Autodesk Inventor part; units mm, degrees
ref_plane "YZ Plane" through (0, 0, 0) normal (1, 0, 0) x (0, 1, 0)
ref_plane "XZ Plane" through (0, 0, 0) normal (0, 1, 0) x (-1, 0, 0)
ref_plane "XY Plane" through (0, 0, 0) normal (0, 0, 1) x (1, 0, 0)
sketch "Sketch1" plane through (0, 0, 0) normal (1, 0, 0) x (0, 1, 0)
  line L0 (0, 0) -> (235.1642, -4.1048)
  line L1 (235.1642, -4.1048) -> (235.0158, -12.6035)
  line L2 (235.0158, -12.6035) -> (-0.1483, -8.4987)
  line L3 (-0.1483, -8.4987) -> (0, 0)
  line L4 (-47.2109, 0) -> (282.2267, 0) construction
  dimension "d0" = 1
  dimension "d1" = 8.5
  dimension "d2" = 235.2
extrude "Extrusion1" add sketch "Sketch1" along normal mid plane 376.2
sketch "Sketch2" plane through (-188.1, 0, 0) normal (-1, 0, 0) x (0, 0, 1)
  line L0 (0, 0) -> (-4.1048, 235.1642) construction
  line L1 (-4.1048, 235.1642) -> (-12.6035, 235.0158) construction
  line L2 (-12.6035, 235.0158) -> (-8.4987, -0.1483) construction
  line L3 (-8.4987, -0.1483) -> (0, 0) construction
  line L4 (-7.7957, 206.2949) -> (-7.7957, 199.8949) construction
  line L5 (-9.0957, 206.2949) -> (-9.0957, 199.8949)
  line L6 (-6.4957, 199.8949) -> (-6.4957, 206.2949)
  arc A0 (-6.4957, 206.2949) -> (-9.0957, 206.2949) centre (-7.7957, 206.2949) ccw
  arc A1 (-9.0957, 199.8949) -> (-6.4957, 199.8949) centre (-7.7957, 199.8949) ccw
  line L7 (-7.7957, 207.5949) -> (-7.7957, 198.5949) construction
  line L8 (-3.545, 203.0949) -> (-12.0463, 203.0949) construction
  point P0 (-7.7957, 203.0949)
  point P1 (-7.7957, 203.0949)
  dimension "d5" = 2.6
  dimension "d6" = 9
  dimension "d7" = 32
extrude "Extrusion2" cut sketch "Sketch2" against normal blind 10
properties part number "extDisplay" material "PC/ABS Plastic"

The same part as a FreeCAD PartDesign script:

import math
import FreeCAD as App
import Part
import Sketcher
Q = App.Units.Quantity

doc = App.newDocument("Part")
body = doc.addObject("PartDesign::Body", "Body")

# Sketch on YZ plane
sketch1 = body.newObject("Sketcher::SketchObject", "Sketch")
sketch1.AttachmentSupport = (doc.getObject("YZ_Plane"), [""])
sketch1.MapMode = "FlatFace"
sketch1.addGeometry([
    Part.LineSegment(App.Vector(235, -4, 0), App.Vector(0, 0, 0)),
    Part.LineSegment(App.Vector(0, 0, 0), App.Vector(0, -8, 0)),
    Part.LineSegment(App.Vector(0, -8, 0), App.Vector(235, -13, 0)),
    Part.LineSegment(App.Vector(235, -13, 0), App.Vector(235, -4, 0)),
], False)
sketch1.addConstraint([
    Sketcher.Constraint("Coincident", 0, 2, 1, 1),
    Sketcher.Constraint("Coincident", 1, 2, 2, 1),
    Sketcher.Constraint("Coincident", 2, 2, 3, 1),
    Sketcher.Constraint("Coincident", 3, 2, 0, 1),
    Sketcher.Constraint("Coincident", 0, 2, -1, 1),
    Sketcher.Constraint("Perpendicular", 0, 1),
    Sketcher.Constraint("Perpendicular", 1, 2),
    Sketcher.Constraint("Perpendicular", 2, 3),
    Sketcher.Constraint("Angle", 2, Q("-1 deg")),
    Sketcher.Constraint("Distance", 0, Q("235.2 mm")),
    Sketcher.Constraint("Distance", 1, Q("8.5 mm")),
])
pad1 = body.newObject("PartDesign::Pad", "Pad")
pad1.Profile = sketch1
pad1.Length = 376.2
pad1.Midplane = True

# Sketch on YZ plane
sketch2 = body.newObject("Sketcher::SketchObject", "Sketch001")
sketch2.AttachmentSupport = (doc.getObject("YZ_Plane"), [""])
sketch2.MapMode = "FlatFace"
sketch2.AttachmentOffset = App.Placement(App.Vector(0, 0, -188.1), App.Rotation())
sketch2.addGeometry([
    Part.ArcOfCircle(Part.Circle(App.Vector(206.3, -7.8, 0), App.Vector(0, 0, 1), 1.3), math.radians(-90), math.radians(90)),
    Part.LineSegment(App.Vector(206.3, -9.1, 0), App.Vector(199.9, -9.1, 0)),
    Part.ArcOfCircle(Part.Circle(App.Vector(199.9, -7.8, 0), App.Vector(0, 0, 1), 1.3), math.radians(90), math.radians(270)),
    Part.LineSegment(App.Vector(199.9, -6.5, 0), App.Vector(206.3, -6.5, 0)),
], False)
sketch2.addConstraint([
    Sketcher.Constraint("Tangent", 0, 1, 1, 1),
    Sketcher.Constraint("Tangent", 1, 2, 2, 2),
    Sketcher.Constraint("Tangent", 2, 1, 3, 1),
    Sketcher.Constraint("Tangent", 3, 2, 0, 2),
    Sketcher.Constraint("Horizontal", 1),
    Sketcher.Constraint("Horizontal", 3),
    Sketcher.Constraint("Radius", 0, Q("1.3 mm")),
    Sketcher.Constraint("DistanceX", 1, 2, 1, 1, Q("6.4 mm")),
    Sketcher.Constraint("DistanceX", -1, 1, 0, 3, Q("206.295 mm")),
    Sketcher.Constraint("DistanceY", 0, 3, -1, 1, Q("7.7957 mm")),
])
pocket1 = body.newObject("PartDesign::Pocket", "Pocket")
pocket1.Profile = sketch2
pocket1.Length = 10
pocket1.Reversed = True

doc.recompute()
